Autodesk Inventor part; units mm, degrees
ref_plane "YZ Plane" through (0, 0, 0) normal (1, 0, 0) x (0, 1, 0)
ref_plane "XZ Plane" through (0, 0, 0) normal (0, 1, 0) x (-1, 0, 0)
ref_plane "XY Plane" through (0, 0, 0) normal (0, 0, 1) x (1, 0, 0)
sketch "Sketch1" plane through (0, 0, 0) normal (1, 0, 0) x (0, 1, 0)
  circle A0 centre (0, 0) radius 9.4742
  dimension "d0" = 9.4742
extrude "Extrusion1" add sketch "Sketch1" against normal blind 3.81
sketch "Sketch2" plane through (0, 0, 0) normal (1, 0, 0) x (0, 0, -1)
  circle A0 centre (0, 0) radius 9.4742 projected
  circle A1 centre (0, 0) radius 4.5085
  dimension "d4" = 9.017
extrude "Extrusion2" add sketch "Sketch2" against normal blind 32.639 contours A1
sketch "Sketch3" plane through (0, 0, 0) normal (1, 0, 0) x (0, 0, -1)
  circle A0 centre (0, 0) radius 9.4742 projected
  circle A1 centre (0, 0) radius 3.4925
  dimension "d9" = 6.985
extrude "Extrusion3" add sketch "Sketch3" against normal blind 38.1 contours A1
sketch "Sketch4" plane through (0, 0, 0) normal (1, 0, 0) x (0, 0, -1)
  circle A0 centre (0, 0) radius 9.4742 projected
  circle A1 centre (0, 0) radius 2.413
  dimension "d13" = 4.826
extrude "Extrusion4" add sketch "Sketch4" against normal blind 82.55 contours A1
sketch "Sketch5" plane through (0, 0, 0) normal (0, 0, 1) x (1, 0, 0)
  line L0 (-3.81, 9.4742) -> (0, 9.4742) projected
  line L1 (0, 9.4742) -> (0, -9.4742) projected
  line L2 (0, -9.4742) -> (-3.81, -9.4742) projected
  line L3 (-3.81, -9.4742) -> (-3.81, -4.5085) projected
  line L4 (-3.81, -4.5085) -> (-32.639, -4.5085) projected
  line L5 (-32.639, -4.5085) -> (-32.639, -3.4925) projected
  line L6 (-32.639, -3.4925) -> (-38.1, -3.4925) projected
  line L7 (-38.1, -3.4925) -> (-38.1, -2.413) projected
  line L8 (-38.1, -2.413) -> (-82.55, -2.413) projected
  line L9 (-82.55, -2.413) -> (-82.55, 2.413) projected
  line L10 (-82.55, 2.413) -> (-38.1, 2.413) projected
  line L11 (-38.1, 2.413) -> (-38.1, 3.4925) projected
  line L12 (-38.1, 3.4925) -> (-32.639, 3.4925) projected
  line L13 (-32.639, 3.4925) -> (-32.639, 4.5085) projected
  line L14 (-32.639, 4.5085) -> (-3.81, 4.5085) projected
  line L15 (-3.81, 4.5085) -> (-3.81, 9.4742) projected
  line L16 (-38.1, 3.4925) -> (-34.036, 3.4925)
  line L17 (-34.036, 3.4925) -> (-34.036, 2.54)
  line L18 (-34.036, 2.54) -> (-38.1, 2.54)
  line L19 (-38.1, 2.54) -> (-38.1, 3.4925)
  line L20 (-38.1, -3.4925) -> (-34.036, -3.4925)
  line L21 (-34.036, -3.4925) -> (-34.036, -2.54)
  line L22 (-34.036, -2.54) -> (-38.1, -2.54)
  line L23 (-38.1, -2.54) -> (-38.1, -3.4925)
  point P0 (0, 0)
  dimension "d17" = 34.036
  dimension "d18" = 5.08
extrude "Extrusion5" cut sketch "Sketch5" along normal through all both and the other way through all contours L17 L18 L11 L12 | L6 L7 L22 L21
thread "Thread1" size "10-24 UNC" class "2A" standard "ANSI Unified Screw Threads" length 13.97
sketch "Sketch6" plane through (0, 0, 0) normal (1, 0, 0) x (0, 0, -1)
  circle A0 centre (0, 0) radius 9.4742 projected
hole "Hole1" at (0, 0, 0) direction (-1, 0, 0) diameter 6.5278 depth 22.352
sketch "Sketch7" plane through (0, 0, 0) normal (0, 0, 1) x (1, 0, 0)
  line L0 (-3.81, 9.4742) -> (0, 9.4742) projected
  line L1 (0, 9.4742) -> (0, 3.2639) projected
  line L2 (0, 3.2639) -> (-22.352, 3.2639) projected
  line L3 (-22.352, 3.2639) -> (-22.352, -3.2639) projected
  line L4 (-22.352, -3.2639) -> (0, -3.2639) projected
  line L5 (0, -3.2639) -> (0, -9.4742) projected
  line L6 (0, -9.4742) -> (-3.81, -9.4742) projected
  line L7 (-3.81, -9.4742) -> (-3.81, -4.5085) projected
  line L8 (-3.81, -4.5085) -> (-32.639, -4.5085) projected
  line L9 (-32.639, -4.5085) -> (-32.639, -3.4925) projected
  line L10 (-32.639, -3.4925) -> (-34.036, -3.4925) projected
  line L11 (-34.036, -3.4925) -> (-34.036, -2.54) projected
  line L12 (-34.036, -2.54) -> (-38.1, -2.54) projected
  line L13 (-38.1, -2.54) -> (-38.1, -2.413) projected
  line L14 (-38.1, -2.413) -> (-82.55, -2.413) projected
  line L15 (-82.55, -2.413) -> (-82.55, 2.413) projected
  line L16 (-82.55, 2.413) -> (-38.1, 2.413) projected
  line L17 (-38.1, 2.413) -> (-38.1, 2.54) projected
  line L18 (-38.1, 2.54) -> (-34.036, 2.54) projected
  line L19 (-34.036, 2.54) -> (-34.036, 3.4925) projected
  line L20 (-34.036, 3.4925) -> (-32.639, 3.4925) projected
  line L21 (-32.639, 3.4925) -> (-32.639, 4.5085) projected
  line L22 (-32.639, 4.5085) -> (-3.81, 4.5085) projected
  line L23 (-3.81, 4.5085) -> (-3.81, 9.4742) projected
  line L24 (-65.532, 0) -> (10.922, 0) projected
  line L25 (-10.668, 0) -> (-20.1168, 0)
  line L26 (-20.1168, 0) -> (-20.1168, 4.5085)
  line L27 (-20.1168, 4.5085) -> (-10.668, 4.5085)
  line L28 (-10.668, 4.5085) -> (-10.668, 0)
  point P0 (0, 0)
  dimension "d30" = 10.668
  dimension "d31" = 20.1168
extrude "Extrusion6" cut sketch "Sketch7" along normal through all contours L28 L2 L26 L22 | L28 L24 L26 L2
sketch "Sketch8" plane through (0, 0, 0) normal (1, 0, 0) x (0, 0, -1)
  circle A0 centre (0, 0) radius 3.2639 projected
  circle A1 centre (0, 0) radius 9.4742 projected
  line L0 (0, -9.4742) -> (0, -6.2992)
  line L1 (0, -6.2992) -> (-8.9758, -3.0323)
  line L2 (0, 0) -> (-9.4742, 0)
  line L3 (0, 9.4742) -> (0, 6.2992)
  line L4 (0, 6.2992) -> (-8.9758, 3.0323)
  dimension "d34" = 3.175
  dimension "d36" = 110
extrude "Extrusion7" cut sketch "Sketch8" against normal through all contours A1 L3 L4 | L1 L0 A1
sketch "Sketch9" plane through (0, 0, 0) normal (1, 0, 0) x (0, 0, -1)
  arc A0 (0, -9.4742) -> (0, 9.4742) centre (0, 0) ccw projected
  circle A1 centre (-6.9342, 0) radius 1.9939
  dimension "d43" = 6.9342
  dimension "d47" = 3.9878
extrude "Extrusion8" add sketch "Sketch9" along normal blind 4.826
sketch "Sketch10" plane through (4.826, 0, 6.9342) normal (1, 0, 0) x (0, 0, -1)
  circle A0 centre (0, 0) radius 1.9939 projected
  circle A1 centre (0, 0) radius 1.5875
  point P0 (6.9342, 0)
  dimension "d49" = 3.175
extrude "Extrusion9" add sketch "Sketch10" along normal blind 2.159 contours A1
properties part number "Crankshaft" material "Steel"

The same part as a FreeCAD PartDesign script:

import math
import FreeCAD as App
import Part
import Sketcher

V = App.Vector
Q = App.Units.Quantity

doc = App.newDocument("Part")
body = doc.addObject("PartDesign::Body", "Body")

# Sketch on YZ plane
sketch1 = doc.addObject("Sketcher::SketchObject", "Sketch")
body.addObject(sketch1)
sketch1.AttachmentSupport = (doc.YZ_Plane, [""])
sketch1.MapMode = "FlatFace"
sketch1.addGeometry(Part.Circle(V(0, 0, 0), V(0, 0, 1), 9.4742), False)
sketch1.addConstraint(Sketcher.Constraint("Coincident", 0, 3, -1, 1))
sketch1.addConstraint(Sketcher.Constraint("Diameter", 0, Q("0.746 in")))
pad1 = doc.addObject("PartDesign::Pad", "Pad")
body.addObject(pad1)
pad1.Profile = sketch1
pad1.Length = Q("0.15 in")
pad1.Reversed = True

# Sketch on YZ plane
sketch2 = doc.addObject("Sketcher::SketchObject", "Sketch001")
body.addObject(sketch2)
sketch2.AttachmentSupport = (doc.YZ_Plane, [""])
sketch2.MapMode = "FlatFace"
sketch2.addGeometry(Part.Circle(V(0, 0, 0), V(0, 0, 1), 4.5085), False)
sketch2.addConstraint(Sketcher.Constraint("Coincident", 0, 3, -1, 1))
sketch2.addConstraint(Sketcher.Constraint("Diameter", 0, Q("0.355 in")))
pad2 = doc.addObject("PartDesign::Pad", "Pad001")
body.addObject(pad2)
pad2.Profile = sketch2
pad2.Length = Q("1.285 in")
pad2.Reversed = True

# Sketch on YZ plane
sketch3 = doc.addObject("Sketcher::SketchObject", "Sketch002")
body.addObject(sketch3)
sketch3.AttachmentSupport = (doc.YZ_Plane, [""])
sketch3.MapMode = "FlatFace"
sketch3.addGeometry(Part.Circle(V(0, 0, 0), V(0, 0, 1), 3.4925), False)
sketch3.addConstraint(Sketcher.Constraint("Coincident", 0, 3, -1, 1))
sketch3.addConstraint(Sketcher.Constraint("Diameter", 0, Q("0.275 in")))
pad3 = doc.addObject("PartDesign::Pad", "Pad002")
body.addObject(pad3)
pad3.Profile = sketch3
pad3.Length = Q("1.5 in")
pad3.Reversed = True

# Sketch on YZ plane
sketch4 = doc.addObject("Sketcher::SketchObject", "Sketch003")
body.addObject(sketch4)
sketch4.AttachmentSupport = (doc.YZ_Plane, [""])
sketch4.MapMode = "FlatFace"
sketch4.addGeometry(Part.Circle(V(0, 0, 0), V(0, 0, 1), 2.413), False)
sketch4.addConstraint(Sketcher.Constraint("Coincident", 0, 3, -1, 1))
sketch4.addConstraint(Sketcher.Constraint("Diameter", 0, Q("0.19 in")))
pad4 = doc.addObject("PartDesign::Pad", "Pad003")
body.addObject(pad4)
pad4.Profile = sketch4
pad4.Length = Q("3.25 in")
pad4.Reversed = True

# Sketch on XY plane
sketch5 = doc.addObject("Sketcher::SketchObject", "Sketch004")
body.addObject(sketch5)
sketch5.AttachmentSupport = (doc.XY_Plane, [""])
sketch5.MapMode = "FlatFace"
sketch5.addGeometry(Part.LineSegment(V(-34.036, 2.54, 0), V(-34.036, 3.4925, 0)), False)
sketch5.addGeometry(Part.LineSegment(V(-34.036, 3.4925, 0), V(-38.1, 3.4925, 0)), False)
sketch5.addGeometry(Part.LineSegment(V(-38.1, 3.4925, 0), V(-38.1, 2.54, 0)), False)
sketch5.addGeometry(Part.LineSegment(V(-38.1, 2.54, 0), V(-34.036, 2.54, 0)), False)
sketch5.addGeometry(Part.LineSegment(V(-38.1, -3.4925, 0), V(-34.036, -3.4925, 0)), False)
sketch5.addGeometry(Part.LineSegment(V(-34.036, -3.4925, 0), V(-34.036, -2.54, 0)), False)
sketch5.addGeometry(Part.LineSegment(V(-34.036, -2.54, 0), V(-38.1, -2.54, 0)), False)
sketch5.addGeometry(Part.LineSegment(V(-38.1, -2.54, 0), V(-38.1, -3.4925, 0)), False)
sketch5.addConstraint(Sketcher.Constraint("Coincident", 0, 2, 1, 1))
sketch5.addConstraint(Sketcher.Constraint("Coincident", 1, 2, 2, 1))
sketch5.addConstraint(Sketcher.Constraint("Coincident", 2, 2, 3, 1))
sketch5.addConstraint(Sketcher.Constraint("Coincident", 3, 2, 0, 1))
sketch5.addConstraint(Sketcher.Constraint("Coincident", 4, 2, 5, 1))
sketch5.addConstraint(Sketcher.Constraint("Coincident", 5, 2, 6, 1))
sketch5.addConstraint(Sketcher.Constraint("Coincident", 6, 2, 7, 1))
sketch5.addConstraint(Sketcher.Constraint("Coincident", 7, 2, 4, 1))
sketch5.addConstraint(Sketcher.Constraint("Vertical", 0))
sketch5.addConstraint(Sketcher.Constraint("Horizontal", 1))
sketch5.addConstraint(Sketcher.Constraint("Vertical", 2))
sketch5.addConstraint(Sketcher.Constraint("Horizontal", 3))
sketch5.addConstraint(Sketcher.Constraint("Horizontal", 4))
sketch5.addConstraint(Sketcher.Constraint("Vertical", 5))
sketch5.addConstraint(Sketcher.Constraint("Horizontal", 6))
sketch5.addConstraint(Sketcher.Constraint("Vertical", 7))
sketch5.addConstraint(Sketcher.Constraint("Symmetric", 0, 2, 4, 2, -1))
sketch5.addConstraint(Sketcher.Constraint("Symmetric", 2, 2, 6, 2, -1))
sketch5.addConstraint(Sketcher.Constraint("DistanceY", 5, 2, 3, 2, Q("0.2 in")))
sketch5.addConstraint(Sketcher.Constraint("DistanceX", 0, 2, -1, 1, Q("1.34 in")))
sketch5.addConstraint(Sketcher.Constraint("DistanceX", 1, 2, 1, 1, Q("0.16 in")))
sketch5.addConstraint(Sketcher.Constraint("DistanceY", 0, 1, 0, 2, Q("0.0375 in")))
pocket1 = doc.addObject("PartDesign::Pocket", "Pocket")
body.addObject(pocket1)
pocket1.Profile = sketch5
pocket1.Type = "ThroughAll"
pocket1.Midplane = True

# Sketch on YZ plane
sketch6 = doc.addObject("Sketcher::SketchObject", "Sketch005")
body.addObject(sketch6)
sketch6.AttachmentSupport = (doc.YZ_Plane, [""])
sketch6.MapMode = "FlatFace"
sketch6.addGeometry(Part.Circle(V(0, 0, 0), V(0, 0, 1), 3.2639), False)
sketch6.addConstraint(Sketcher.Constraint("Coincident", 0, 3, -1, 1))
sketch6.addConstraint(Sketcher.Constraint("Diameter", 0, Q("0.257 in")))
doc.recompute()
hole = doc.addObject("PartDesign::Hole", "Hole")
body.addObject(hole)
hole.Profile = sketch6
hole.ThreadType = "None"
hole.Diameter = Q("0.257 in")
hole.DepthType = "Dimension"
hole.Depth = Q("0.88 in")
hole.DrillPoint = "Flat"

# Sketch on XY plane
sketch7 = doc.addObject("Sketcher::SketchObject", "Sketch006")
body.addObject(sketch7)
sketch7.AttachmentSupport = (doc.XY_Plane, [""])
sketch7.MapMode = "FlatFace"
sketch7.addGeometry(Part.LineSegment(V(-10.668, 4.5085, 0), V(-20.1168, 4.5085, 0)), False)
sketch7.addGeometry(Part.LineSegment(V(-20.1168, 4.5085, 0), V(-20.1168, 0, 0)), False)
sketch7.addGeometry(Part.LineSegment(V(-20.1168, 0, 0), V(-10.668, 0, 0)), False)
sketch7.addGeometry(Part.LineSegment(V(-10.668, 0, 0), V(-10.668, 4.5085, 0)), False)
sketch7.addConstraint(Sketcher.Constraint("Coincident", 0, 2, 1, 1))
sketch7.addConstraint(Sketcher.Constraint("Coincident", 1, 2, 2, 1))
sketch7.addConstraint(Sketcher.Constraint("Coincident", 2, 2, 3, 1))
sketch7.addConstraint(Sketcher.Constraint("Coincident", 3, 2, 0, 1))
sketch7.addConstraint(Sketcher.Constraint("Horizontal", 0))
sketch7.addConstraint(Sketcher.Constraint("Vertical", 1))
sketch7.addConstraint(Sketcher.Constraint("Horizontal", 2))
sketch7.addConstraint(Sketcher.Constraint("Vertical", 3))
sketch7.addConstraint(Sketcher.Constraint("PointOnObject", 1, 2, -1))
sketch7.addConstraint(Sketcher.Constraint("DistanceX", 2, 2, -1, 1, Q("0.42 in")))
sketch7.addConstraint(Sketcher.Constraint("DistanceX", 0, 2, -1, 1, Q("0.792 in")))
sketch7.addConstraint(Sketcher.Constraint("DistanceY", 1, 2, 1, 1, Q("0.1775 in")))
pocket2 = doc.addObject("PartDesign::Pocket", "Pocket001")
body.addObject(pocket2)
pocket2.Profile = sketch7
pocket2.Type = "ThroughAll"
pocket2.Reversed = True

# Sketch on YZ plane
sketch8 = doc.addObject("Sketcher::SketchObject", "Sketch007")
body.addObject(sketch8)
sketch8.AttachmentSupport = (doc.YZ_Plane, [""])
sketch8.MapMode = "FlatFace"
sketch8.addGeometry(Part.ArcOfCircle(Part.Circle(V(0, 0, 0), V(0, 0, 1), 9.4742), math.radians(0), math.radians(71.333457)), False)
sketch8.addGeometry(Part.LineSegment(V(3.0323, 8.9758, 0), V(6.2992, 0, 0)), False)
sketch8.addGeometry(Part.LineSegment(V(6.2992, 0, 0), V(9.4742, 0, 0)), False)
sketch8.addGeometry(Part.LineSegment(V(-6.2992, 0, 0), V(-3.0323, 8.9758, 0)), False)
sketch8.addGeometry(Part.ArcOfCircle(Part.Circle(V(0, 0, 0), V(0, 0, 1), 9.4742), math.radians(108.666543), math.radians(180)), False)
sketch8.addGeometry(Part.LineSegment(V(-9.4742, 0, 0), V(-6.2992, 0, 0)), False)
sketch8.addConstraint(Sketcher.Constraint("Coincident", 0, 2, 1, 1))
sketch8.addConstraint(Sketcher.Constraint("Coincident", 1, 2, 2, 1))
sketch8.addConstraint(Sketcher.Constraint("Coincident", 2, 2, 0, 1))
sketch8.addConstraint(Sketcher.Constraint("Coincident", 3, 2, 4, 1))
sketch8.addConstraint(Sketcher.Constraint("Coincident", 4, 2, 5, 1))
sketch8.addConstraint(Sketcher.Constraint("Coincident", 5, 2, 3, 1))
sketch8.addConstraint(Sketcher.Constraint("Horizontal", 2))
sketch8.addConstraint(Sketcher.Constraint("Horizontal", 5))
sketch8.addConstraint(Sketcher.Constraint("Coincident", 0, 3, -1, 1))
sketch8.addConstraint(Sketcher.Constraint("Coincident", 4, 3, -1, 1))
sketch8.addConstraint(Sketcher.Constraint("Equal", 0, 4))
sketch8.addConstraint(Sketcher.Constraint("Symmetric", 1, 2, 5, 2, -1, 1))
sketch8.addConstraint(Sketcher.Constraint("PointOnObject", 1, 2, -1))
sketch8.addConstraint(Sketcher.Constraint("Horizontal", 0, 2, 3, 2))
sketch8.addConstraint(Sketcher.Constraint("DistanceX", 2, 1, 2, 2, Q("0.125 in")))
sketch8.addConstraint(Sketcher.Constraint("Angle", 1, Q("-70.0001 deg")))
sketch8.addConstraint(Sketcher.Constraint("Radius", 0, Q("0.373 in")))
pocket3 = doc.addObject("PartDesign::Pocket", "Pocket002")
body.addObject(pocket3)
pocket3.Profile = sketch8
pocket3.Type = "ThroughAll"

# Sketch on YZ plane
sketch9 = doc.addObject("Sketcher::SketchObject", "Sketch008")
body.addObject(sketch9)
sketch9.AttachmentSupport = (doc.YZ_Plane, [""])
sketch9.MapMode = "FlatFace"
sketch9.addGeometry(Part.Circle(V(0, 6.9342, 0), V(0, 0, 1), 1.9939), False)
sketch9.addConstraint(Sketcher.Constraint("PointOnObject", 0, 3, -2))
sketch9.addConstraint(Sketcher.Constraint("Diameter", 0, Q("0.157 in")))
sketch9.addConstraint(Sketcher.Constraint("DistanceY", -1, 1, 0, 3, Q("0.273 in")))
pad5 = doc.addObject("PartDesign::Pad", "Pad004")
body.addObject(pad5)
pad5.Profile = sketch9
pad5.Length = Q("0.19 in")

# Sketch on YZ plane
sketch10 = doc.addObject("Sketcher::SketchObject", "Sketch009")
body.addObject(sketch10)
sketch10.AttachmentSupport = (doc.YZ_Plane, [""])
sketch10.MapMode = "FlatFace"
sketch10.AttachmentOffset = App.Placement(V(0, 0, 0.19 * 25.4), App.Rotation())
sketch10.addGeometry(Part.Circle(V(0, 6.9342, 0), V(0, 0, 1), 1.5875), False)
sketch10.addConstraint(Sketcher.Constraint("PointOnObject", 0, 3, -2))
sketch10.addConstraint(Sketcher.Constraint("Diameter", 0, Q("0.125 in")))
sketch10.addConstraint(Sketcher.Constraint("DistanceY", -1, 1, 0, 3, Q("0.273 in")))
pad6 = doc.addObject("PartDesign::Pad", "Pad005")
body.addObject(pad6)
pad6.Profile = sketch10
pad6.Length = Q("0.085 in")

doc.recompute()
